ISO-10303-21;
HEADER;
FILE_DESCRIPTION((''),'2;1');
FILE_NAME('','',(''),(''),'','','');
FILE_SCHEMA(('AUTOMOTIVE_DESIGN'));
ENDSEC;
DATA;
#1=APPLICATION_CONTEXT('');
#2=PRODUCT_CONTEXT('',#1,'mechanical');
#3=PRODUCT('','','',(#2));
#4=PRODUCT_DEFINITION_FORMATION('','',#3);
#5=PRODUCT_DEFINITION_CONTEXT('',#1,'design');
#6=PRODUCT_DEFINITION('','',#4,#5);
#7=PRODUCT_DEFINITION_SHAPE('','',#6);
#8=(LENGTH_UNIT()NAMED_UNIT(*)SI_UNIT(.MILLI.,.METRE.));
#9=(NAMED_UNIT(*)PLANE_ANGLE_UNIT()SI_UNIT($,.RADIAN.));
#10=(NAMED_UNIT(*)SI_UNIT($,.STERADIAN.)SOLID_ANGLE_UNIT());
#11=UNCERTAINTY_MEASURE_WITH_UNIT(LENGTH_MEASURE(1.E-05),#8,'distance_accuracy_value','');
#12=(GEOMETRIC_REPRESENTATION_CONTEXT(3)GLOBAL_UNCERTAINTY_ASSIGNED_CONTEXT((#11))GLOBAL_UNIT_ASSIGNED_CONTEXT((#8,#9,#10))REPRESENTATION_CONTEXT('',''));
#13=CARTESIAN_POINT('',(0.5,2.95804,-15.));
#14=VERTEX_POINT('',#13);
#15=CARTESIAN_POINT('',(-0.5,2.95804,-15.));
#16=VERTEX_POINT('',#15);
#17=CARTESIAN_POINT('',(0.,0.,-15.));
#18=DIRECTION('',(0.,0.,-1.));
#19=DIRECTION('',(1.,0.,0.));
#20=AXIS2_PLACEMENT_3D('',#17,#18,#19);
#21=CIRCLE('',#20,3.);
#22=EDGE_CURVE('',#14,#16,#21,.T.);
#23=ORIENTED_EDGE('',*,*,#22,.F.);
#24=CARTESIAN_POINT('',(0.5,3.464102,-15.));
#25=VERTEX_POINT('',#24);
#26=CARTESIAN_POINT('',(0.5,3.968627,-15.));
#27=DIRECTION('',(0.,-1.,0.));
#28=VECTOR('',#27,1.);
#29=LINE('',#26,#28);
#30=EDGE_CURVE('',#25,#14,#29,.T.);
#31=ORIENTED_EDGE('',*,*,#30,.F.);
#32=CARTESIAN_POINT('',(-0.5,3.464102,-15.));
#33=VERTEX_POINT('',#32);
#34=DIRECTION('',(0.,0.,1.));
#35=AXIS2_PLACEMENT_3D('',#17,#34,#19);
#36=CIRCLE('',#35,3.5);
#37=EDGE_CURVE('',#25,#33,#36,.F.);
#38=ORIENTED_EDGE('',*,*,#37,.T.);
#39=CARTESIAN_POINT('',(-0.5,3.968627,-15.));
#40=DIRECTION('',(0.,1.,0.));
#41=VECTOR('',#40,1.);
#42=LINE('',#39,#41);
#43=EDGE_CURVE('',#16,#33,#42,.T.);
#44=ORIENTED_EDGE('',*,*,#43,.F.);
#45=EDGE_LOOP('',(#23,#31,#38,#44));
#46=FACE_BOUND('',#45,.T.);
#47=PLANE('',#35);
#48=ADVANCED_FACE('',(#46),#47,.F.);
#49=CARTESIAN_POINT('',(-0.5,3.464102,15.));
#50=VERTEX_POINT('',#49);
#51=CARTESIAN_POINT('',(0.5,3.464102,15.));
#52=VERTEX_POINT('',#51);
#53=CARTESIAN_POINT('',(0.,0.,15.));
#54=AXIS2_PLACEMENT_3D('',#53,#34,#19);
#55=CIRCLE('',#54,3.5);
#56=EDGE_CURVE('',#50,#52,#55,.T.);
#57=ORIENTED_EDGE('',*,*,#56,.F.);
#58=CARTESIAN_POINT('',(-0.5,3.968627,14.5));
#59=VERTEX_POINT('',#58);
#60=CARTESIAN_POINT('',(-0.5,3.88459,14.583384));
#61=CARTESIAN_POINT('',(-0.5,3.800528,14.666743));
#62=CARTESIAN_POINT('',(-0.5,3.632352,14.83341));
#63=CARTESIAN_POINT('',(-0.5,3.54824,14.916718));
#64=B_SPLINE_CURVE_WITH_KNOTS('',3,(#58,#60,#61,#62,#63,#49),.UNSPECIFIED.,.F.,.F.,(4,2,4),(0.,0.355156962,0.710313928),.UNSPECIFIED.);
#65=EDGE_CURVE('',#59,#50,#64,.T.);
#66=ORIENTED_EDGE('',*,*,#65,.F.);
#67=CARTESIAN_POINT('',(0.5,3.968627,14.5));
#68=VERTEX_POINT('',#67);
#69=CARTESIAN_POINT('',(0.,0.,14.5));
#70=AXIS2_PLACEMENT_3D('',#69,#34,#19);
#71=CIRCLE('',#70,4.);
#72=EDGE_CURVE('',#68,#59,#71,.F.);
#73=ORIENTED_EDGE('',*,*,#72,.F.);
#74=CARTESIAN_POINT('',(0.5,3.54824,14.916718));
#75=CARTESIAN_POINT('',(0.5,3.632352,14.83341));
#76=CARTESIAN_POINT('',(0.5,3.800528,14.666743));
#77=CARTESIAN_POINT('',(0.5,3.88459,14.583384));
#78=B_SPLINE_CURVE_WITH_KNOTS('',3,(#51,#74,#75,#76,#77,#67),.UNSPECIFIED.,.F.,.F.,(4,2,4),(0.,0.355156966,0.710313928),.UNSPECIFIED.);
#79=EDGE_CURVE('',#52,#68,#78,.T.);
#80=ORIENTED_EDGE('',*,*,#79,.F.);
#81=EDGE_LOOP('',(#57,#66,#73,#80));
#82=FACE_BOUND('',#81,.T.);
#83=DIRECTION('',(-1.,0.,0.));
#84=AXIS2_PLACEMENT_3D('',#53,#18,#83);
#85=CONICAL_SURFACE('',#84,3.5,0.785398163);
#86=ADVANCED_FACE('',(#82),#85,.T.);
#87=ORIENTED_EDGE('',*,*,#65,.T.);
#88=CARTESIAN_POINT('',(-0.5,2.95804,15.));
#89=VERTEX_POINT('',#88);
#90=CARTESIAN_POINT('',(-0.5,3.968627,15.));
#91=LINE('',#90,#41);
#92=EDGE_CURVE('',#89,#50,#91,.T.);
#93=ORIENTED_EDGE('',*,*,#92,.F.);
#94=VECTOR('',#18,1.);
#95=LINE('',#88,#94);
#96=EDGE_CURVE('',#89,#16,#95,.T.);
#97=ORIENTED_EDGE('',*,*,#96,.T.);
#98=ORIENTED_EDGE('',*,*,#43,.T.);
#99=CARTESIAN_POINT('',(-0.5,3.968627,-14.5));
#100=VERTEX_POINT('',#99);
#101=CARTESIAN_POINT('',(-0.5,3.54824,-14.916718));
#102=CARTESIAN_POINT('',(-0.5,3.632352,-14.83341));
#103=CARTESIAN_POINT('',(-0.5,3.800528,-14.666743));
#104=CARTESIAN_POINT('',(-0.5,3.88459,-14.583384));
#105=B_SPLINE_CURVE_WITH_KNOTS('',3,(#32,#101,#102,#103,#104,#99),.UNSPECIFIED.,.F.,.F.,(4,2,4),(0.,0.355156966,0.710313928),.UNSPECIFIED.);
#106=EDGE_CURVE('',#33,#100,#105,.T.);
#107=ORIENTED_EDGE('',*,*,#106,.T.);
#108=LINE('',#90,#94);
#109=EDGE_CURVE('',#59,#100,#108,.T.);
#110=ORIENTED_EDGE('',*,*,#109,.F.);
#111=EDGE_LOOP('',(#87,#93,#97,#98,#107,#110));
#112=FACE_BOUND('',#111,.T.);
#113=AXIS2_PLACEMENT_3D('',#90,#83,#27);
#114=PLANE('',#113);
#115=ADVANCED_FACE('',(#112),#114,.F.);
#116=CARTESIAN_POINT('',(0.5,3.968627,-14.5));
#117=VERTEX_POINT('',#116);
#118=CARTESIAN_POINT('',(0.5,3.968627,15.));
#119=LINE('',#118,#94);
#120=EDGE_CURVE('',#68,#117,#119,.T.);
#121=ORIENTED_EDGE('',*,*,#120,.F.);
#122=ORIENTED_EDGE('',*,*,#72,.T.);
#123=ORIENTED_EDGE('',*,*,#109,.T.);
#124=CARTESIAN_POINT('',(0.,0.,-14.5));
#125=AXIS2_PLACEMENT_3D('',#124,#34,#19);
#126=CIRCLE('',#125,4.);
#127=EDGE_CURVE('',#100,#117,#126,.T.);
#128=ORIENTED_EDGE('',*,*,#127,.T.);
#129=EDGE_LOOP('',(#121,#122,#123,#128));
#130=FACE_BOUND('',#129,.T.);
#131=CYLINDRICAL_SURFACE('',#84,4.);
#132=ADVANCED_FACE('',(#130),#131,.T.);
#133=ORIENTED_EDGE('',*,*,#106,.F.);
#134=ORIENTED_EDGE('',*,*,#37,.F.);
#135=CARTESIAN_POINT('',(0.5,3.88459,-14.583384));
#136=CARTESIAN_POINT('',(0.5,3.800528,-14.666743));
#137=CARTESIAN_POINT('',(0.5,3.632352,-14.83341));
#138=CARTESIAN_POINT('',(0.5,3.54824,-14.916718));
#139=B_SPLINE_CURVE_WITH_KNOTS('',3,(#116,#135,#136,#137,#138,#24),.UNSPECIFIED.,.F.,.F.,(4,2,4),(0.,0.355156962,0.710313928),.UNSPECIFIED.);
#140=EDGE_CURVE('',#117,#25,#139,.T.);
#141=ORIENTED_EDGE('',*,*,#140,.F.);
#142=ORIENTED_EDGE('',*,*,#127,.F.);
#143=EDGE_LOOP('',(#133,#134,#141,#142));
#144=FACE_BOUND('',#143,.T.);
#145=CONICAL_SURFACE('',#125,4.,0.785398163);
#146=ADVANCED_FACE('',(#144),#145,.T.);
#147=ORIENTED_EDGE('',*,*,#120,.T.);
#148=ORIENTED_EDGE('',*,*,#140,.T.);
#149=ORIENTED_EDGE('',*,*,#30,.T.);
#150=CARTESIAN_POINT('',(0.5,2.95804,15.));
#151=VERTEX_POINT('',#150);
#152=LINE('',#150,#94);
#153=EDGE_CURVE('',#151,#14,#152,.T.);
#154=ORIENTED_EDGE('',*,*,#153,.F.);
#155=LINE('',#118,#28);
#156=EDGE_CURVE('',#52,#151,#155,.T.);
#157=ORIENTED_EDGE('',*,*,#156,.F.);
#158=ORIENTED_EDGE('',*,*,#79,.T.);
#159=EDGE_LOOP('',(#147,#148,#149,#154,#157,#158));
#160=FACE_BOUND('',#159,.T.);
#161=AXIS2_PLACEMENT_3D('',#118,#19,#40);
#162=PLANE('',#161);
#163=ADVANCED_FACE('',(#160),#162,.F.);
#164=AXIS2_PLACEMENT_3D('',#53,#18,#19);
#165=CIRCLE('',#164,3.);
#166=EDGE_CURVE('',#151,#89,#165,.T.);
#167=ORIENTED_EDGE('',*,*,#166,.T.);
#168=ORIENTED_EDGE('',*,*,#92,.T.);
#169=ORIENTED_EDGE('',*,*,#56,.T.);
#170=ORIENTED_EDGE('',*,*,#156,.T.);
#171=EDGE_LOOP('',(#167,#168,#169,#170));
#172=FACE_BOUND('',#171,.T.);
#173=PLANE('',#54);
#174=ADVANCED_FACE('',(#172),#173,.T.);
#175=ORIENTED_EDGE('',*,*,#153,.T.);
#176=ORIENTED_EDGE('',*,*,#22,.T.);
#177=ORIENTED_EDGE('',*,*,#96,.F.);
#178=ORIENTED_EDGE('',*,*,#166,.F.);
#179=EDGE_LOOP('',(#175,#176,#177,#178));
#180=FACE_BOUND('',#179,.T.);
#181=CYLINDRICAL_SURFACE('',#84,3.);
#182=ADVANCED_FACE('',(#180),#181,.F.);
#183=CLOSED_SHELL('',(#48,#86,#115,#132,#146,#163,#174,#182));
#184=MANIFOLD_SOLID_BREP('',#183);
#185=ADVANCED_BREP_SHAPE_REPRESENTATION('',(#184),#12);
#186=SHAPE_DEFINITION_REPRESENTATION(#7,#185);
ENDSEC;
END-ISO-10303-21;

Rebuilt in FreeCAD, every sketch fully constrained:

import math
import FreeCAD as App
import Part
import Sketcher
from FreeCAD import Vector
Q = App.Units.Quantity


def edges_at(feature, points):
    """Names of the edges that pass closest to the given points."""
    edges = feature.Shape.Edges
    near = lambda p: min(range(len(edges)), key=lambda i: edges[i].distToShape(Part.Vertex(*p))[0])
    return sorted({f"Edge{near(p) + 1}" for p in points})

doc = App.newDocument("Part")
body = doc.addObject("PartDesign::Body", "Body")

# Sketch on XY plane
sketch1 = doc.addObject("Sketcher::SketchObject", "Sketch")
body.addObject(sketch1)
sketch1.AttachmentSupport = (doc.XY_Plane, [""])
sketch1.MapMode = "FlatFace"
sketch1.addGeometry(Part.LineSegment(Vector(0.5, 4, 0), Vector(0.5, 3, 0)), False)
sketch1.addGeometry(Part.ArcOfCircle(Part.Circle(Vector(0, 0, 0), Vector(0, 0, 1), 3), math.radians(100), math.radians(440)), False)
sketch1.addGeometry(Part.LineSegment(Vector(-0.5, 3, 0), Vector(-0.5, 4, 0)), False)
sketch1.addGeometry(Part.ArcOfCircle(Part.Circle(Vector(0, 0, 0), Vector(0, 0, 1), 4), math.radians(97), math.radians(443)), False)
sketch1.addConstraint(Sketcher.Constraint("Coincident", 0, 2, 1, 2))
sketch1.addConstraint(Sketcher.Constraint("Coincident", 1, 1, 2, 1))
sketch1.addConstraint(Sketcher.Constraint("Coincident", 2, 2, 3, 1))
sketch1.addConstraint(Sketcher.Constraint("Coincident", 3, 2, 0, 1))
sketch1.addConstraint(Sketcher.Constraint("Vertical", 0))
sketch1.addConstraint(Sketcher.Constraint("Vertical", 2))
sketch1.addConstraint(Sketcher.Constraint("Coincident", 1, 3, -1, 1))
sketch1.addConstraint(Sketcher.Constraint("Coincident", 3, 3, -1, 1))
sketch1.addConstraint(Sketcher.Constraint("Horizontal", 0, 2, 1, 1))
sketch1.addConstraint(Sketcher.Constraint("Radius", 1, Q("3 mm")))
sketch1.addConstraint(Sketcher.Constraint("Radius", 3, Q("4 mm")))
sketch1.addConstraint(Sketcher.Constraint("DistanceX", 1, 1, 0, 2, Q("1 mm")))
pad1 = doc.addObject("PartDesign::Pad", "Pad")
body.addObject(pad1)
pad1.Profile = sketch1
pad1.Type = "TwoLengths"
pad1.Length = 15
pad1.Length2 = 15
doc.recompute()

chamfer = doc.addObject("PartDesign::Chamfer", "Chamfer")
body.addObject(chamfer)
chamfer.Base = (pad1, edges_at(pad1, [(0, -4, -15), (0, -4, 15)]))
chamfer.Size = 0.5

doc.recompute()
